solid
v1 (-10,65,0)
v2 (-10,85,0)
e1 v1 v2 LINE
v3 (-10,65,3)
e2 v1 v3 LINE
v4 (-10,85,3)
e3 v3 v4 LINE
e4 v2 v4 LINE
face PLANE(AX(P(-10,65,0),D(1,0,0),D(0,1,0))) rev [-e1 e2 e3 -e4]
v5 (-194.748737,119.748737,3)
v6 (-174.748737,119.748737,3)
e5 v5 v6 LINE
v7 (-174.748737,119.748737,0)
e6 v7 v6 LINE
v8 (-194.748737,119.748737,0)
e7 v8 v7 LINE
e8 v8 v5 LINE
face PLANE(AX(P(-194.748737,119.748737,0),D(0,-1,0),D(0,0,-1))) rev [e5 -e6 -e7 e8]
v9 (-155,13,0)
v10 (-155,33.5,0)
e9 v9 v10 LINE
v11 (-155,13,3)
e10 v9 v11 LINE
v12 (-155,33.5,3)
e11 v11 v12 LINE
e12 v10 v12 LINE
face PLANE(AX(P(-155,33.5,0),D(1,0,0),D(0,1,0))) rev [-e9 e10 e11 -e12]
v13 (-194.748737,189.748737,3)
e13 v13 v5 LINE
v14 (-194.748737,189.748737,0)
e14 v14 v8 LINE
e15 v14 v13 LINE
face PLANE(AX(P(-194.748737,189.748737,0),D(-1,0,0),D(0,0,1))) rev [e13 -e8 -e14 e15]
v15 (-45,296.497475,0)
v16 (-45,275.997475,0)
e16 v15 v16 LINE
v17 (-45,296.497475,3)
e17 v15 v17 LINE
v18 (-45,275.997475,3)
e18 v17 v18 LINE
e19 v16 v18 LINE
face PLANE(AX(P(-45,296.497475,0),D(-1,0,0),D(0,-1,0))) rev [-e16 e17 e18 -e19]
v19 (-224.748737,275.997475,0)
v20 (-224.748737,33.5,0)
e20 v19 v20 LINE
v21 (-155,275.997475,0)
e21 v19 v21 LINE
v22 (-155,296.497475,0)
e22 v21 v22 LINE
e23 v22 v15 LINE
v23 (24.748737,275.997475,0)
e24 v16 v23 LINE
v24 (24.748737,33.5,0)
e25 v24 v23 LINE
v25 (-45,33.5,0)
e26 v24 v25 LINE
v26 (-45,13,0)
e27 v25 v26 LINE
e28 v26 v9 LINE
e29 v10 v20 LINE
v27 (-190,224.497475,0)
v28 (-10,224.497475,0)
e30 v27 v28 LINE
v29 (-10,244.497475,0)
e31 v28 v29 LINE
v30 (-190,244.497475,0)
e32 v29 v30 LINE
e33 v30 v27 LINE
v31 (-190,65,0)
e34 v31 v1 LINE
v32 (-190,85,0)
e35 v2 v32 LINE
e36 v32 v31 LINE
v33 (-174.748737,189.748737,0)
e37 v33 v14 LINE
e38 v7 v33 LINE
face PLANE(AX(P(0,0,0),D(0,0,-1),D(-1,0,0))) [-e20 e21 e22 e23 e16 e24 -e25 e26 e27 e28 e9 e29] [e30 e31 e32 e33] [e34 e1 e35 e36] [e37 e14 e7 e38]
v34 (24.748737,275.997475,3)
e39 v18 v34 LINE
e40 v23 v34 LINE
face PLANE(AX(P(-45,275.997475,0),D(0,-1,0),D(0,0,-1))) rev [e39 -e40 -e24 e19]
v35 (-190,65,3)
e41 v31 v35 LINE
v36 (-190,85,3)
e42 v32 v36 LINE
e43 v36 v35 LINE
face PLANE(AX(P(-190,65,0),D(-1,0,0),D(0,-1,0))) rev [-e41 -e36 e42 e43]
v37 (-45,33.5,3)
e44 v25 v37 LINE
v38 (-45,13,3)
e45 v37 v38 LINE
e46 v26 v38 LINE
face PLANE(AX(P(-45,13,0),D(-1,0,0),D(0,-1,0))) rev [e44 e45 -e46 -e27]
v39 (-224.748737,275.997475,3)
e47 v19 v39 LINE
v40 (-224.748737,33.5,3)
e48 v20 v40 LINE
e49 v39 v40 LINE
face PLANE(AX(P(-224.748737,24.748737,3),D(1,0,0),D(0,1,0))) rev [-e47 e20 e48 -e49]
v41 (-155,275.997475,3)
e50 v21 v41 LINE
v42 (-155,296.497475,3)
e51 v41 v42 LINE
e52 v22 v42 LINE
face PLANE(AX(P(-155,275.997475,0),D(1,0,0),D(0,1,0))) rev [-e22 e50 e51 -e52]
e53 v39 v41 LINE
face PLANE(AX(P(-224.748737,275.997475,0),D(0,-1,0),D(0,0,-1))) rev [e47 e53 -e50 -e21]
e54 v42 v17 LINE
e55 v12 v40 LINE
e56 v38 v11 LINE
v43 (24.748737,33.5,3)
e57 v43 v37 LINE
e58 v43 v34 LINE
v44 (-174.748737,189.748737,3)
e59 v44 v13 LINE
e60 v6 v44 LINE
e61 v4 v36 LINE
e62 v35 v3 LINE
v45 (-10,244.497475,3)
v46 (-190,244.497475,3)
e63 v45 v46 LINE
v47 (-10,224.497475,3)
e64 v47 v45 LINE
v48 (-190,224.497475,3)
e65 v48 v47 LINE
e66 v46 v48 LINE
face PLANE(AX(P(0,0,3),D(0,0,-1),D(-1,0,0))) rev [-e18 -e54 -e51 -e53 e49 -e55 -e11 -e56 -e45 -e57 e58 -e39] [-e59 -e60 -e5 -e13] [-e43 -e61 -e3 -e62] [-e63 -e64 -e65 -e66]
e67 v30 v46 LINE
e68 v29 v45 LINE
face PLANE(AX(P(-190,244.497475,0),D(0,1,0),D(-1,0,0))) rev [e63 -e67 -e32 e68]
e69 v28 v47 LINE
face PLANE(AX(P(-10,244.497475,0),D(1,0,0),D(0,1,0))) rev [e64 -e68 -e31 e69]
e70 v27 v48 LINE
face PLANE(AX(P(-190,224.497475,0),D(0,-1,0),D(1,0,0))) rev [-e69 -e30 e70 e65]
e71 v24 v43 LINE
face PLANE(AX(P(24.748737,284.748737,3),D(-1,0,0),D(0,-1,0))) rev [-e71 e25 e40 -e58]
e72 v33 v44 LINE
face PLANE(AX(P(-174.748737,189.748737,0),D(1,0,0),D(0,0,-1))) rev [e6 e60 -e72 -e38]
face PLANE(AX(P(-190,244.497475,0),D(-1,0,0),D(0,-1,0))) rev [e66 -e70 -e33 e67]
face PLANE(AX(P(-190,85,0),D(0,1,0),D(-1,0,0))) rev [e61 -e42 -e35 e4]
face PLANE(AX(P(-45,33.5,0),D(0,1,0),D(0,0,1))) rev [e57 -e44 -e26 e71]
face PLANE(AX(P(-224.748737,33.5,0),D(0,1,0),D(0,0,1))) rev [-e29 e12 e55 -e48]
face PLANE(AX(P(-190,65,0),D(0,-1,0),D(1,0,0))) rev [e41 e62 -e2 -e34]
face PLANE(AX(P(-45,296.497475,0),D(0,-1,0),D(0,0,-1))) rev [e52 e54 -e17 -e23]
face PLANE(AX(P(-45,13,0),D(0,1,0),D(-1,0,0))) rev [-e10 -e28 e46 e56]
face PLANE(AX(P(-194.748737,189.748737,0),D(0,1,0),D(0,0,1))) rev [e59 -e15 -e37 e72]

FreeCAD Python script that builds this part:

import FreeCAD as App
import Part
import Sketcher
from FreeCAD import Vector


def add_polygon(sketch, points):
    """Adds a closed chain of lines whose ends are joined by coincident constraints."""
    first, n = sketch.GeometryCount, len(points)
    for a, b in zip(points, points[1:] + points[:1]):
        sketch.addGeometry(Part.LineSegment(App.Vector(*a, 0), App.Vector(*b, 0)), False)
    for i in range(n):
        sketch.addConstraint(Sketcher.Constraint("Coincident", first + i, 2, first + (i + 1) % n, 1))

doc = App.newDocument("Part")
body = doc.addObject("PartDesign::Body", "Body")

# Sketch on XY plane
sketch1 = body.newObject("Sketcher::SketchObject", "Sketch")
sketch1.AttachmentSupport = (doc.getObject("XY_Plane"), [""])
sketch1.MapMode = "FlatFace"
add_polygon(sketch1, [(-200, 0), (0, 0), (24.748737, 24.748737), (24.748737, 284.748737), (0, 309.497475), (-200, 309.497475), (-224.748737, 284.748737), (-224.748737, 24.748737)])  # lines 0-7
sketch1.addConstraint(Sketcher.Constraint("Horizontal", 0))
sketch1.addConstraint(Sketcher.Constraint("Vertical", 2))
sketch1.addConstraint(Sketcher.Constraint("Horizontal", 4))
sketch1.addConstraint(Sketcher.Constraint("Vertical", 6))
sketch1.addConstraint(Sketcher.Constraint("Coincident", 0, 2, -1, 1))
sketch1.addConstraint(Sketcher.Constraint("PointOnObject", 3, 2, -2))
sketch1.addConstraint(Sketcher.Constraint("Perpendicular", 1, 3))
sketch1.addConstraint(Sketcher.Constraint("Perpendicular", 3, 5))
sketch1.addConstraint(Sketcher.Constraint("Perpendicular", 5, 7))
sketch1.addConstraint(Sketcher.Constraint("Horizontal", 2, 2, 5, 2))
sketch1.addConstraint(Sketcher.Constraint("Horizontal", 1, 2, 6, 2))
sketch1.addConstraint(Sketcher.Constraint("Vertical", 4, 2, 7, 2))
sketch1.addConstraint(Sketcher.Constraint("DistanceX", 0, 1, 0, 2, 200.0))
sketch1.addConstraint(Sketcher.Constraint("DistanceY", 2, 1, 2, 2, 260.0))
sketch1.addConstraint(Sketcher.Constraint("Distance", 1, 35.0))
pad1 = body.newObject("PartDesign::Pad", "Pad")
pad1.Profile = sketch1
pad1.Length = 3

# Sketch on XY plane
sketch2 = body.newObject("Sketcher::SketchObject", "Sketch001")
sketch2.AttachmentSupport = (doc.getObject("XY_Plane"), [""])
sketch2.MapMode = "FlatFace"
sketch2.AttachmentOffset = App.Placement(Vector(0, 0, 3), App.Rotation())
add_polygon(sketch2, [(-45, 13), (-155, 13), (-155, 33.5), (-224.748737, 33.5), (-224.748737, 0), (24.748737, 0), (24.748737, 33.5), (-45, 33.5)])  # lines 0-7
add_polygon(sketch2, [(24.748737, 275.997475), (24.748737, 309.497475), (-224.748737, 309.497475), (-224.748737, 275.997475), (-155, 275.997475), (-155, 296.497475), (-45, 296.497475), (-45, 275.997475)])  # lines 8-15
sketch2.addConstraint(Sketcher.Constraint("Horizontal", 0))
sketch2.addConstraint(Sketcher.Constraint("Vertical", 1))
sketch2.addConstraint(Sketcher.Constraint("Horizontal", 2))
sketch2.addConstraint(Sketcher.Constraint("Vertical", 3))
sketch2.addConstraint(Sketcher.Constraint("Horizontal", 4))
sketch2.addConstraint(Sketcher.Constraint("Vertical", 5))
sketch2.addConstraint(Sketcher.Constraint("Horizontal", 6))
sketch2.addConstraint(Sketcher.Constraint("Vertical", 7))
sketch2.addConstraint(Sketcher.Constraint("Vertical", 8))
sketch2.addConstraint(Sketcher.Constraint("Horizontal", 9))
sketch2.addConstraint(Sketcher.Constraint("Vertical", 10))
sketch2.addConstraint(Sketcher.Constraint("Horizontal", 11))
sketch2.addConstraint(Sketcher.Constraint("Vertical", 12))
sketch2.addConstraint(Sketcher.Constraint("Horizontal", 13))
sketch2.addConstraint(Sketcher.Constraint("Vertical", 14))
sketch2.addConstraint(Sketcher.Constraint("Horizontal", 15))
sketch2.addConstraint(Sketcher.Constraint("PointOnObject", 3, 2, -1))
sketch2.addConstraint(Sketcher.Constraint("Horizontal", 2, 2, 5, 2))
sketch2.addConstraint(Sketcher.Constraint("Horizontal", 11, 2, 14, 2))
sketch2.addConstraint(Sketcher.Constraint("Vertical", 5, 2, 8, 2))
sketch2.addConstraint(Sketcher.Constraint("Vertical", 3, 2, 9, 2))
sketch2.addConstraint(Sketcher.Constraint("Vertical", 1, 2, 11, 2))
sketch2.addConstraint(Sketcher.Constraint("Vertical", 7, 2, 13, 2))
sketch2.addConstraint(Sketcher.Constraint("Equal", 2, 6))
sketch2.addConstraint(Sketcher.Constraint("Equal", 5, 8))
sketch2.addConstraint(Sketcher.Constraint("Equal", 7, 12))
sketch2.addConstraint(Sketcher.Constraint("DistanceX", 0, 2, 0, 1, 110.0))
sketch2.addConstraint(Sketcher.Constraint("DistanceY", 1, 1, 1, 2, 20.5))
sketch2.addConstraint(Sketcher.Constraint("DistanceY", 3, 2, 3, 1, 33.5))
sketch2.addConstraint(Sketcher.Constraint("DistanceX", 0, 2, -1, 1, 155.0))
sketch2.addConstraint(Sketcher.Constraint("DistanceX", 2, 2, 2, 1, 69.748737))
sketch2.addConstraint(Sketcher.Constraint("DistanceY", -1, 1, 8, 2, 309.497475))
pocket1 = body.newObject("PartDesign::Pocket", "Pocket")
pocket1.Profile = sketch2
pocket1.Length = 3

# Sketch on XY plane
sketch3 = body.newObject("Sketcher::SketchObject", "Sketch002")
sketch3.AttachmentSupport = (doc.getObject("XY_Plane"), [""])
sketch3.MapMode = "FlatFace"
sketch3.AttachmentOffset = App.Placement(Vector(0, 0, 3), App.Rotation())
add_polygon(sketch3, [(-190, 244.497475), (-190, 224.497475), (-10, 224.497475), (-10, 244.497475)])  # lines 0-3
add_polygon(sketch3, [(-190, 85), (-190, 65), (-10, 65), (-10, 85)])  # lines 4-7
add_polygon(sketch3, [(-194.748737, 189.748737), (-194.748737, 119.748737), (-174.748737, 119.748737), (-174.748737, 189.748737)])  # lines 8-11
sketch3.addConstraint(Sketcher.Constraint("Vertical", 0))
sketch3.addConstraint(Sketcher.Constraint("Horizontal", 1))
sketch3.addConstraint(Sketcher.Constraint("Vertical", 2))
sketch3.addConstraint(Sketcher.Constraint("Horizontal", 3))
sketch3.addConstraint(Sketcher.Constraint("Vertical", 4))
sketch3.addConstraint(Sketcher.Constraint("Horizontal", 5))
sketch3.addConstraint(Sketcher.Constraint("Vertical", 6))
sketch3.addConstraint(Sketcher.Constraint("Horizontal", 7))
sketch3.addConstraint(Sketcher.Constraint("Vertical", 8))
sketch3.addConstraint(Sketcher.Constraint("Horizontal", 9))
sketch3.addConstraint(Sketcher.Constraint("Vertical", 10))
sketch3.addConstraint(Sketcher.Constraint("Horizontal", 11))
sketch3.addConstraint(Sketcher.Constraint("Vertical", 3, 2, 4, 2))
sketch3.addConstraint(Sketcher.Constraint("Vertical", 2, 2, 5, 2))
sketch3.addConstraint(Sketcher.Constraint("Equal", 11, 0))
sketch3.addConstraint(Sketcher.Constraint("Equal", 2, 4))
sketch3.addConstraint(Sketcher.Constraint("DistanceX", 1, 1, 1, 2, 180.0))
sketch3.addConstraint(Sketcher.Constraint("DistanceX", 9, 1, 9, 2, 20.0))
sketch3.addConstraint(Sketcher.Constraint("DistanceY", 8, 2, 8, 1, 70.0))
sketch3.addConstraint(Sketcher.Constraint("DistanceX", 0, 2, -1, 1, 190.0))
sketch3.addConstraint(Sketcher.Constraint("DistanceY", -1, 1, 4, 2, 65.0))
sketch3.addConstraint(Sketcher.Constraint("DistanceY", -1, 1, 0, 2, 224.497475))
sketch3.addConstraint(Sketcher.Constraint("DistanceX", 8, 2, -1, 1, 194.748737))
sketch3.addConstraint(Sketcher.Constraint("DistanceY", -1, 1, 8, 2, 119.748737))
pocket2 = body.newObject("PartDesign::Pocket", "Pocket001")
pocket2.Profile = sketch3
pocket2.Length = 3

doc.recompute()
